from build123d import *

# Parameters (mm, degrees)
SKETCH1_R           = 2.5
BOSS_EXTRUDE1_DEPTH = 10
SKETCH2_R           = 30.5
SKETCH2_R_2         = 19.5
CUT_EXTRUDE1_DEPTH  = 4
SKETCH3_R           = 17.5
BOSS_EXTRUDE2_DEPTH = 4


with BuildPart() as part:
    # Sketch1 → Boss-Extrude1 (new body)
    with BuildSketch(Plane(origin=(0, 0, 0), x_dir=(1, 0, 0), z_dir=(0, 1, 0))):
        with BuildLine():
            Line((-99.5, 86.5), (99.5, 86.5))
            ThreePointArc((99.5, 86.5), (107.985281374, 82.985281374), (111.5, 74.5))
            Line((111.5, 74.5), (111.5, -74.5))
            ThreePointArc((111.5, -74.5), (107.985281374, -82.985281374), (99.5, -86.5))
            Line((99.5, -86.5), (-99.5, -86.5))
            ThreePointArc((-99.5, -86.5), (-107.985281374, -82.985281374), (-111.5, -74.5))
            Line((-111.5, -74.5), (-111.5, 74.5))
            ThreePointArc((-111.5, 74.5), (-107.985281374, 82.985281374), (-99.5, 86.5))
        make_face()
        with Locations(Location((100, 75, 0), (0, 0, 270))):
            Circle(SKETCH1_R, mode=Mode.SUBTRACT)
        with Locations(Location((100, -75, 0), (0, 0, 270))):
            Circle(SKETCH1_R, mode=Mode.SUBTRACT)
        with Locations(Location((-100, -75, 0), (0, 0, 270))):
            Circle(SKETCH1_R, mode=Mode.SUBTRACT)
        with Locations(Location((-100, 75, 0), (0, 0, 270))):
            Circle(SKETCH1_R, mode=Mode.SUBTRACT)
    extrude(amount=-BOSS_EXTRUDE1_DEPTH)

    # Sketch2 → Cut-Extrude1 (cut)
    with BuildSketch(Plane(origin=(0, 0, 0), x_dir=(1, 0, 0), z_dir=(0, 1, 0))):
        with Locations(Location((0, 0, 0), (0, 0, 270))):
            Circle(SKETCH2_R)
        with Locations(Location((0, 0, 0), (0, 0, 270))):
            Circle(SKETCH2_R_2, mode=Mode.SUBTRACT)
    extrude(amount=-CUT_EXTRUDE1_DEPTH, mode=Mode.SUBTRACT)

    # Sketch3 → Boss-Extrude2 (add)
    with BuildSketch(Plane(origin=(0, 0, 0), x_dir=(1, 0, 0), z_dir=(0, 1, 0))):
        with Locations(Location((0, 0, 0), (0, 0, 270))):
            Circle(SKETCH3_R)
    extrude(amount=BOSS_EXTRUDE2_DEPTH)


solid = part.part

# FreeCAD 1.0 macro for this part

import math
import FreeCAD as App
import Part
import Sketcher
from FreeCAD import Vector

doc = App.newDocument("Part")
body = doc.addObject("PartDesign::Body", "Body")

sketch1 = body.newObject("Sketcher::SketchObject", "Sketch")
sketch1.AttachmentSupport = (doc.getObject("XZ_Plane"), [""])
sketch1.MapMode = "FlatFace"
sketch1.addGeometry([
    Part.LineSegment(Vector(99.5, -86.5, 0), Vector(-99.5, -86.5, 0)),
    Part.ArcOfCircle(Part.Circle(Vector(-99.5, -74.5, 0), Vector(0, 0, 1), 12), math.radians(-180), math.radians(-90)),
    Part.LineSegment(Vector(-111.5, -74.5, 0), Vector(-111.5, 74.5, 0)),
    Part.ArcOfCircle(Part.Circle(Vector(-99.5, 74.5, 0), Vector(0, 0, 1), 12), math.radians(90), math.radians(180)),
    Part.LineSegment(Vector(-99.5, 86.5, 0), Vector(99.5, 86.5, 0)),
    Part.ArcOfCircle(Part.Circle(Vector(99.5, 74.5, 0), Vector(0, 0, 1), 12), math.radians(0), math.radians(90)),
    Part.LineSegment(Vector(111.5, 74.5, 0), Vector(111.5, -74.5, 0)),
    Part.ArcOfCircle(Part.Circle(Vector(99.5, -74.5, 0), Vector(0, 0, 1), 12), math.radians(-90), math.radians(0)),
    Part.Circle(Vector(100, 75, 0), Vector(0, 0, 1), 2.5),
    Part.Circle(Vector(-100, 75, 0), Vector(0, 0, 1), 2.5),
    Part.Circle(Vector(100, -75, 0), Vector(0, 0, 1), 2.5),
    Part.Circle(Vector(-100, -75, 0), Vector(0, 0, 1), 2.5),
], False)
sketch1.addConstraint([
    Sketcher.Constraint("Tangent", 0, 2, 1, 2),
    Sketcher.Constraint("Tangent", 1, 1, 2, 1),
    Sketcher.Constraint("Tangent", 2, 2, 3, 2),
    Sketcher.Constraint("Tangent", 3, 1, 4, 1),
    Sketcher.Constraint("Tangent", 4, 2, 5, 2),
    Sketcher.Constraint("Tangent", 5, 1, 6, 1),
    Sketcher.Constraint("Tangent", 6, 2, 7, 2),
    Sketcher.Constraint("Tangent", 7, 1, 0, 1),
    Sketcher.Constraint("Horizontal", 0),
    Sketcher.Constraint("Vertical", 2),
    Sketcher.Constraint("Horizontal", 4),
    Sketcher.Constraint("Vertical", 6),
    Sketcher.Constraint("Equal", 1, 3),
    Sketcher.Constraint("Equal", 3, 5),
    Sketcher.Constraint("Equal", 5, 7),
    Sketcher.Constraint("Equal", 8, 9),
    Sketcher.Constraint("Equal", 9, 10),
    Sketcher.Constraint("Equal", 10, 11),
    Sketcher.Constraint("Symmetric", 1, 3, 5, 3, -1, 1),
    Sketcher.Constraint("Symmetric", 9, 3, 10, 3, -1, 1),
    Sketcher.Constraint("Symmetric", 8, 3, 11, 3, -1, 1),
    Sketcher.Constraint("Symmetric", 8, 3, 9, 3, -2),
    Sketcher.Constraint("Diameter", 8, 5.0),
    Sketcher.Constraint("Radius", 1, 12.0),
    Sketcher.Constraint("DistanceX", 0, 2, 0, 1, 199.0),
    Sketcher.Constraint("DistanceY", 2, 1, 2, 2, 149.0),
    Sketcher.Constraint("DistanceX", -1, 1, 8, 3, 100.0),
    Sketcher.Constraint("DistanceY", -1, 1, 8, 3, 75.0),
])
pad1 = body.newObject("PartDesign::Pad", "Pad")
pad1.Profile = sketch1
pad1.Length = 10

sketch2 = body.newObject("Sketcher::SketchObject", "Sketch001")
sketch2.AttachmentSupport = (doc.getObject("XZ_Plane"), [""])
sketch2.MapMode = "FlatFace"
sketch2.addGeometry([
    Part.Circle(Vector(0, 0, 0), Vector(0, 0, 1), 30),
    Part.Circle(Vector(0, 0, 0), Vector(0, 0, 1), 20),
], False)
sketch2.addConstraint([
    Sketcher.Constraint("Coincident", 0, 3, -1, 1),
    Sketcher.Constraint("Coincident", 1, 3, -1, 1),
    Sketcher.Constraint("Diameter", 0, 61.0),
    Sketcher.Constraint("Diameter", 1, 39.0),
])
pocket1 = body.newObject("PartDesign::Pocket", "Pocket")
pocket1.Profile = sketch2
pocket1.Length = 4
pocket1.Reversed = True

sketch3 = body.newObject("Sketcher::SketchObject", "Sketch002")
sketch3.AttachmentSupport = (doc.getObject("XZ_Plane"), [""])
sketch3.MapMode = "FlatFace"
sketch3.addGeometry(Part.Circle(Vector(0, 0, 0), Vector(0, 0, 1), 18), False)
sketch3.addConstraint([
    Sketcher.Constraint("Coincident", 0, 3, -1, 1),
    Sketcher.Constraint("Diameter", 0, 35.0),
])
pad2 = body.newObject("PartDesign::Pad", "Pad001")
pad2.Profile = sketch3
pad2.Length = 4
pad2.Reversed = True

doc.recompute()
